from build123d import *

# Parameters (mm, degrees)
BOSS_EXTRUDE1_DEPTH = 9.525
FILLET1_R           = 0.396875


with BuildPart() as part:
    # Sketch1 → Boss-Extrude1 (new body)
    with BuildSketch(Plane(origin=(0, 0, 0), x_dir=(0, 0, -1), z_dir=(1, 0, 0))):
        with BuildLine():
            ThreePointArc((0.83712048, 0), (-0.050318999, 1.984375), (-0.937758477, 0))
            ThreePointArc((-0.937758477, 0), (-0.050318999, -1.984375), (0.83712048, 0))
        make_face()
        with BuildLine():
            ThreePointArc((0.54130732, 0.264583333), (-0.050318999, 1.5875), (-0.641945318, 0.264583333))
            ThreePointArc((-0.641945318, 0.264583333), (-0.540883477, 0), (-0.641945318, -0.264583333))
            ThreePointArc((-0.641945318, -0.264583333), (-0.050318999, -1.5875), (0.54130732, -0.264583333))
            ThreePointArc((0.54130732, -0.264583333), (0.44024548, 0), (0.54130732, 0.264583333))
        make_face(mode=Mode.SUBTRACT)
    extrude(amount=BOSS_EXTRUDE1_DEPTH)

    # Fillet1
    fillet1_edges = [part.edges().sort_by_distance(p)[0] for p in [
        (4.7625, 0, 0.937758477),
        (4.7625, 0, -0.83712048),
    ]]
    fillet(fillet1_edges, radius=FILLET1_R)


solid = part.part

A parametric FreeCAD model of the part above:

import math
import FreeCAD as App
import Part
import Sketcher
Q = App.Units.Quantity


def edges_at(feature, points):
    """Names of the edges that pass closest to the given points."""
    edges = feature.Shape.Edges
    near = lambda p: min(range(len(edges)), key=lambda i: edges[i].distToShape(Part.Vertex(*p))[0])
    return sorted({f"Edge{near(p) + 1}" for p in points})

doc = App.newDocument("Part")
body = doc.addObject("PartDesign::Body", "Body")

# Sketch on YZ plane
sketch1 = doc.addObject("Sketcher::SketchObject", "Sketch")
body.addObject(sketch1)
sketch1.AttachmentSupport = (doc.YZ_Plane, [""])
sketch1.MapMode = "FlatFace"
sketch1.addGeometry([
    Part.ArcOfCircle(Part.Circle(App.Vector(0.79, 0.05, 0), App.Vector(0, 0, 1), 1.19), math.radians(-132), math.radians(132)),  # 0
    Part.ArcOfCircle(Part.Circle(App.Vector(-0.79, 0.05, 0), App.Vector(0, 0, 1), 1.19), math.radians(48), math.radians(312)),  # 1
    Part.ArcOfCircle(Part.Circle(App.Vector(0.79, 0.05, 0), App.Vector(0, 0, 1), 0.79), math.radians(-132), math.radians(132)),  # 2
    Part.ArcOfCircle(Part.Circle(App.Vector(0, -0.84, 0), App.Vector(0, 0, 1), 0.4), math.radians(48), math.radians(132)),  # 3
    Part.ArcOfCircle(Part.Circle(App.Vector(-0.79, 0.05, 0), App.Vector(0, 0, 1), 0.79), math.radians(48), math.radians(312)),  # 4
    Part.ArcOfCircle(Part.Circle(App.Vector(0, 0.94, 0), App.Vector(0, 0, 1), 0.4), math.radians(-132), math.radians(-48)),  # 5
], False)
sketch1.addConstraint([
    Sketcher.Constraint("Coincident", 0, 1, 1, 2),
    Sketcher.Constraint("Coincident", 1, 1, 0, 2),
    Sketcher.Constraint("Tangent", 2, 1, 3, 1),
    Sketcher.Constraint("Tangent", 3, 2, 4, 2),
    Sketcher.Constraint("Tangent", 4, 1, 5, 1),
    Sketcher.Constraint("Tangent", 5, 2, 2, 2),
    Sketcher.Constraint("Coincident", 2, 3, 0, 3),
    Sketcher.Constraint("Coincident", 4, 3, 1, 3),
    Sketcher.Constraint("Coincident", 0, 1, 3, 3),
    Sketcher.Constraint("Equal", 0, 1),
    Sketcher.Constraint("Equal", 3, 5),
    Sketcher.Constraint("Symmetric", 0, 3, 1, 3, -2),
    Sketcher.Constraint("Radius", 0, Q("0.046875 in")),
    Sketcher.Constraint("Radius", 2, Q("0.03125 in")),
    Sketcher.Constraint("DistanceX", -1, 1, 0, 3, Q("0.03125 in")),
    Sketcher.Constraint("DistanceY", -1, 1, 0, 3, 0.050319),
])
pad1 = doc.addObject("PartDesign::Pad", "Pad")
body.addObject(pad1)
pad1.Profile = sketch1
pad1.Length = Q("0.375 in")
doc.recompute()

fillet = doc.addObject("PartDesign::Fillet", "Fillet")
body.addObject(fillet)
fillet.Base = (pad1, edges_at(pad1, [(4.763, 0, 0.938), (4.763, 0, -0.837)]))
fillet.Radius = Q("0.015625 in")

doc.recompute()
